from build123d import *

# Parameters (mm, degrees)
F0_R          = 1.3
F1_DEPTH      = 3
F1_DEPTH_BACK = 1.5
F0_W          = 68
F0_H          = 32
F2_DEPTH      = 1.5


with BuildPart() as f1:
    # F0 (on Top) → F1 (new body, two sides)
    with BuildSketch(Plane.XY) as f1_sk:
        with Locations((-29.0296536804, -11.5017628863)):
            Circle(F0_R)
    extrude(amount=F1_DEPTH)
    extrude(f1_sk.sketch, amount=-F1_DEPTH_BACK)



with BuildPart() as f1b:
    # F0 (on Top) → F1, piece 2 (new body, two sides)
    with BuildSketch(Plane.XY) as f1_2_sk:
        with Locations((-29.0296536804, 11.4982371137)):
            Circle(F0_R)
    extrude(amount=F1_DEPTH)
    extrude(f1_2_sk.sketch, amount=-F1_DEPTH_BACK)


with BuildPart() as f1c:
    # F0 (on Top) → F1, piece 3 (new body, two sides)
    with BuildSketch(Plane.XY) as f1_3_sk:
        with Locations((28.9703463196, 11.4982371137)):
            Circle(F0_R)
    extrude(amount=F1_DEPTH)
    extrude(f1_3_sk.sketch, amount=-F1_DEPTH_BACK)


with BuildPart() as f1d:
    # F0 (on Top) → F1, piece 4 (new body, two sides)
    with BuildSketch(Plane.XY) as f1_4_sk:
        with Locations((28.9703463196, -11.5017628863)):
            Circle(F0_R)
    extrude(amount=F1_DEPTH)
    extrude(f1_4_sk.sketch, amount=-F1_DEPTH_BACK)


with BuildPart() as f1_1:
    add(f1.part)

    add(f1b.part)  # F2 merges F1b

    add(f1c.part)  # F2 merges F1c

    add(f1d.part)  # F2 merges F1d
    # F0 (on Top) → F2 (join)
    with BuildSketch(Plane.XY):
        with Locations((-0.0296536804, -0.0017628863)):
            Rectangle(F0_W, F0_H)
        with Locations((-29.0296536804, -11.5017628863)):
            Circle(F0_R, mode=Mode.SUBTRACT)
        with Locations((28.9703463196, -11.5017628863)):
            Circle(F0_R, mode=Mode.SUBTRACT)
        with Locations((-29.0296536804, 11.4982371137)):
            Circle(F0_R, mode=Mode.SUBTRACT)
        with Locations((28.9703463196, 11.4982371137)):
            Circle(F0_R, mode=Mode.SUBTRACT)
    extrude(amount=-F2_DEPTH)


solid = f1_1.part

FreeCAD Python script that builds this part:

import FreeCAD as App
import Part
import Sketcher

doc = App.newDocument("Part")
body = doc.addObject("PartDesign::Body", "Body")

# Sketch on XY plane
sketch1 = body.newObject("Sketcher::SketchObject", "Sketch")
sketch1.AttachmentSupport = (doc.getObject("XY_Plane"), [""])
sketch1.MapMode = "FlatFace"
sketch1.addGeometry(Part.Circle(App.Vector(-29, -11.5, 0), App.Vector(0, 0, 1), 1.3), False)
sketch1.addConstraint(Sketcher.Constraint("Diameter", 0, 2.6))
sketch1.addConstraint(Sketcher.Constraint("DistanceX", 0, 3, -1, 1, 29.029654))
sketch1.addConstraint(Sketcher.Constraint("DistanceY", 0, 3, -1, 1, 11.501763))
pad1 = body.newObject("PartDesign::Pad", "Pad")
pad1.Profile = sketch1
pad1.Type = "TwoLengths"
pad1.Length = 3
pad1.Length2 = 1.5
body2 = doc.addObject("PartDesign::Body", "Body001")

# Sketch on XY plane
sketch2 = body2.newObject("Sketcher::SketchObject", "Sketch001")
sketch2.AttachmentSupport = (doc.getObject("XY_Plane001"), [""])
sketch2.MapMode = "FlatFace"
sketch2.addGeometry(Part.Circle(App.Vector(-29, 11.5, 0), App.Vector(0, 0, 1), 1.3), False)
sketch2.addConstraint(Sketcher.Constraint("Diameter", 0, 2.6))
sketch2.addConstraint(Sketcher.Constraint("DistanceX", 0, 3, -1, 1, 29.029654))
sketch2.addConstraint(Sketcher.Constraint("DistanceY", -1, 1, 0, 3, 11.498237))
pad2 = body2.newObject("PartDesign::Pad", "Pad001")
pad2.Profile = sketch2
pad2.Type = "TwoLengths"
pad2.Length = 3
pad2.Length2 = 1.5
body3 = doc.addObject("PartDesign::Body", "Body002")

# Sketch on XY plane
sketch3 = body3.newObject("Sketcher::SketchObject", "Sketch002")
sketch3.AttachmentSupport = (doc.getObject("XY_Plane002"), [""])
sketch3.MapMode = "FlatFace"
sketch3.addGeometry(Part.Circle(App.Vector(29, 11.5, 0), App.Vector(0, 0, 1), 1.3), False)
sketch3.addConstraint(Sketcher.Constraint("Diameter", 0, 2.6))
sketch3.addConstraint(Sketcher.Constraint("DistanceX", -1, 1, 0, 3, 28.970346))
sketch3.addConstraint(Sketcher.Constraint("DistanceY", -1, 1, 0, 3, 11.498237))
pad3 = body3.newObject("PartDesign::Pad", "Pad002")
pad3.Profile = sketch3
pad3.Type = "TwoLengths"
pad3.Length = 3
pad3.Length2 = 1.5
body4 = doc.addObject("PartDesign::Body", "Body003")

# Sketch on XY plane
sketch4 = body4.newObject("Sketcher::SketchObject", "Sketch003")
sketch4.AttachmentSupport = (doc.getObject("XY_Plane003"), [""])
sketch4.MapMode = "FlatFace"
sketch4.addGeometry(Part.Circle(App.Vector(29, -11.5, 0), App.Vector(0, 0, 1), 1.3), False)
sketch4.addConstraint(Sketcher.Constraint("Diameter", 0, 2.6))
sketch4.addConstraint(Sketcher.Constraint("DistanceX", -1, 1, 0, 3, 28.970346))
sketch4.addConstraint(Sketcher.Constraint("DistanceY", 0, 3, -1, 1, 11.501763))
pad4 = body4.newObject("PartDesign::Pad", "Pad003")
pad4.Profile = sketch4
pad4.Type = "TwoLengths"
pad4.Length = 3
pad4.Length2 = 1.5
body.AllowCompound = True
doc.recompute()

boolean = body.newObject("PartDesign::Boolean", "Boolean")
boolean.Type = "Fuse"
boolean.addObjects([body2])
doc.recompute()

boolean2 = body.newObject("PartDesign::Boolean", "Boolean001")
boolean2.Type = "Fuse"
boolean2.addObjects([body3])
doc.recompute()

boolean3 = body.newObject("PartDesign::Boolean", "Boolean002")
boolean3.Type = "Fuse"
boolean3.addObjects([body4])

# Sketch on XY plane
sketch5 = body.newObject("Sketcher::SketchObject", "Sketch004")
sketch5.AttachmentSupport = (doc.getObject("XY_Plane"), [""])
sketch5.MapMode = "FlatFace"
sketch5.addGeometry(Part.LineSegment(App.Vector(-34, 16, 0), App.Vector(-34, -16, 0)), False)
sketch5.addGeometry(Part.LineSegment(App.Vector(-34, -16, 0), App.Vector(34, -16, 0)), False)
sketch5.addGeometry(Part.LineSegment(App.Vector(34, -16, 0), App.Vector(34, 16, 0)), False)
sketch5.addGeometry(Part.LineSegment(App.Vector(34, 16, 0), App.Vector(-34, 16, 0)), False)
sketch5.addGeometry(Part.Circle(App.Vector(-29, -11.5, 0), App.Vector(0, 0, 1), 1.3), False)
sketch5.addGeometry(Part.Circle(App.Vector(29, -11.5, 0), App.Vector(0, 0, 1), 1.3), False)
sketch5.addGeometry(Part.Circle(App.Vector(-29, 11.5, 0), App.Vector(0, 0, 1), 1.3), False)
sketch5.addGeometry(Part.Circle(App.Vector(29, 11.5, 0), App.Vector(0, 0, 1), 1.3), False)
sketch5.addConstraint(Sketcher.Constraint("Coincident", 0, 2, 1, 1))
sketch5.addConstraint(Sketcher.Constraint("Coincident", 1, 2, 2, 1))
sketch5.addConstraint(Sketcher.Constraint("Coincident", 2, 2, 3, 1))
sketch5.addConstraint(Sketcher.Constraint("Coincident", 3, 2, 0, 1))
sketch5.addConstraint(Sketcher.Constraint("Vertical", 0))
sketch5.addConstraint(Sketcher.Constraint("Horizontal", 1))
sketch5.addConstraint(Sketcher.Constraint("Vertical", 2))
sketch5.addConstraint(Sketcher.Constraint("Horizontal", 3))
sketch5.addConstraint(Sketcher.Constraint("Equal", 4, 5))
sketch5.addConstraint(Sketcher.Constraint("Equal", 5, 6))
sketch5.addConstraint(Sketcher.Constraint("Equal", 6, 7))
sketch5.addConstraint(Sketcher.Constraint("Horizontal", 4, 3, 5, 3))
sketch5.addConstraint(Sketcher.Constraint("Horizontal", 6, 3, 7, 3))
sketch5.addConstraint(Sketcher.Constraint("Vertical", 4, 3, 6, 3))
sketch5.addConstraint(Sketcher.Constraint("Vertical", 5, 3, 7, 3))
sketch5.addConstraint(Sketcher.Constraint("Diameter", 4, 2.6))
sketch5.addConstraint(Sketcher.Constraint("DistanceX", 1, 1, 1, 2, 68.0))
sketch5.addConstraint(Sketcher.Constraint("DistanceY", 0, 2, 0, 1, 32.0))
sketch5.addConstraint(Sketcher.Constraint("DistanceX", 4, 3, 5, 3, 58.0))
sketch5.addConstraint(Sketcher.Constraint("DistanceY", 4, 3, 6, 3, 23.0))
sketch5.addConstraint(Sketcher.Constraint("DistanceX", 0, 2, 4, 3, 5.0))
sketch5.addConstraint(Sketcher.Constraint("DistanceY", 0, 2, 4, 3, 4.5))
sketch5.addConstraint(Sketcher.Constraint("DistanceX", 4, 3, -1, 1, 29.029654))
sketch5.addConstraint(Sketcher.Constraint("DistanceY", 4, 3, -1, 1, 11.501763))
pad5 = body.newObject("PartDesign::Pad", "Pad004")
pad5.Profile = sketch5
pad5.Length = 1.5
pad5.Reversed = True

doc.recompute()
